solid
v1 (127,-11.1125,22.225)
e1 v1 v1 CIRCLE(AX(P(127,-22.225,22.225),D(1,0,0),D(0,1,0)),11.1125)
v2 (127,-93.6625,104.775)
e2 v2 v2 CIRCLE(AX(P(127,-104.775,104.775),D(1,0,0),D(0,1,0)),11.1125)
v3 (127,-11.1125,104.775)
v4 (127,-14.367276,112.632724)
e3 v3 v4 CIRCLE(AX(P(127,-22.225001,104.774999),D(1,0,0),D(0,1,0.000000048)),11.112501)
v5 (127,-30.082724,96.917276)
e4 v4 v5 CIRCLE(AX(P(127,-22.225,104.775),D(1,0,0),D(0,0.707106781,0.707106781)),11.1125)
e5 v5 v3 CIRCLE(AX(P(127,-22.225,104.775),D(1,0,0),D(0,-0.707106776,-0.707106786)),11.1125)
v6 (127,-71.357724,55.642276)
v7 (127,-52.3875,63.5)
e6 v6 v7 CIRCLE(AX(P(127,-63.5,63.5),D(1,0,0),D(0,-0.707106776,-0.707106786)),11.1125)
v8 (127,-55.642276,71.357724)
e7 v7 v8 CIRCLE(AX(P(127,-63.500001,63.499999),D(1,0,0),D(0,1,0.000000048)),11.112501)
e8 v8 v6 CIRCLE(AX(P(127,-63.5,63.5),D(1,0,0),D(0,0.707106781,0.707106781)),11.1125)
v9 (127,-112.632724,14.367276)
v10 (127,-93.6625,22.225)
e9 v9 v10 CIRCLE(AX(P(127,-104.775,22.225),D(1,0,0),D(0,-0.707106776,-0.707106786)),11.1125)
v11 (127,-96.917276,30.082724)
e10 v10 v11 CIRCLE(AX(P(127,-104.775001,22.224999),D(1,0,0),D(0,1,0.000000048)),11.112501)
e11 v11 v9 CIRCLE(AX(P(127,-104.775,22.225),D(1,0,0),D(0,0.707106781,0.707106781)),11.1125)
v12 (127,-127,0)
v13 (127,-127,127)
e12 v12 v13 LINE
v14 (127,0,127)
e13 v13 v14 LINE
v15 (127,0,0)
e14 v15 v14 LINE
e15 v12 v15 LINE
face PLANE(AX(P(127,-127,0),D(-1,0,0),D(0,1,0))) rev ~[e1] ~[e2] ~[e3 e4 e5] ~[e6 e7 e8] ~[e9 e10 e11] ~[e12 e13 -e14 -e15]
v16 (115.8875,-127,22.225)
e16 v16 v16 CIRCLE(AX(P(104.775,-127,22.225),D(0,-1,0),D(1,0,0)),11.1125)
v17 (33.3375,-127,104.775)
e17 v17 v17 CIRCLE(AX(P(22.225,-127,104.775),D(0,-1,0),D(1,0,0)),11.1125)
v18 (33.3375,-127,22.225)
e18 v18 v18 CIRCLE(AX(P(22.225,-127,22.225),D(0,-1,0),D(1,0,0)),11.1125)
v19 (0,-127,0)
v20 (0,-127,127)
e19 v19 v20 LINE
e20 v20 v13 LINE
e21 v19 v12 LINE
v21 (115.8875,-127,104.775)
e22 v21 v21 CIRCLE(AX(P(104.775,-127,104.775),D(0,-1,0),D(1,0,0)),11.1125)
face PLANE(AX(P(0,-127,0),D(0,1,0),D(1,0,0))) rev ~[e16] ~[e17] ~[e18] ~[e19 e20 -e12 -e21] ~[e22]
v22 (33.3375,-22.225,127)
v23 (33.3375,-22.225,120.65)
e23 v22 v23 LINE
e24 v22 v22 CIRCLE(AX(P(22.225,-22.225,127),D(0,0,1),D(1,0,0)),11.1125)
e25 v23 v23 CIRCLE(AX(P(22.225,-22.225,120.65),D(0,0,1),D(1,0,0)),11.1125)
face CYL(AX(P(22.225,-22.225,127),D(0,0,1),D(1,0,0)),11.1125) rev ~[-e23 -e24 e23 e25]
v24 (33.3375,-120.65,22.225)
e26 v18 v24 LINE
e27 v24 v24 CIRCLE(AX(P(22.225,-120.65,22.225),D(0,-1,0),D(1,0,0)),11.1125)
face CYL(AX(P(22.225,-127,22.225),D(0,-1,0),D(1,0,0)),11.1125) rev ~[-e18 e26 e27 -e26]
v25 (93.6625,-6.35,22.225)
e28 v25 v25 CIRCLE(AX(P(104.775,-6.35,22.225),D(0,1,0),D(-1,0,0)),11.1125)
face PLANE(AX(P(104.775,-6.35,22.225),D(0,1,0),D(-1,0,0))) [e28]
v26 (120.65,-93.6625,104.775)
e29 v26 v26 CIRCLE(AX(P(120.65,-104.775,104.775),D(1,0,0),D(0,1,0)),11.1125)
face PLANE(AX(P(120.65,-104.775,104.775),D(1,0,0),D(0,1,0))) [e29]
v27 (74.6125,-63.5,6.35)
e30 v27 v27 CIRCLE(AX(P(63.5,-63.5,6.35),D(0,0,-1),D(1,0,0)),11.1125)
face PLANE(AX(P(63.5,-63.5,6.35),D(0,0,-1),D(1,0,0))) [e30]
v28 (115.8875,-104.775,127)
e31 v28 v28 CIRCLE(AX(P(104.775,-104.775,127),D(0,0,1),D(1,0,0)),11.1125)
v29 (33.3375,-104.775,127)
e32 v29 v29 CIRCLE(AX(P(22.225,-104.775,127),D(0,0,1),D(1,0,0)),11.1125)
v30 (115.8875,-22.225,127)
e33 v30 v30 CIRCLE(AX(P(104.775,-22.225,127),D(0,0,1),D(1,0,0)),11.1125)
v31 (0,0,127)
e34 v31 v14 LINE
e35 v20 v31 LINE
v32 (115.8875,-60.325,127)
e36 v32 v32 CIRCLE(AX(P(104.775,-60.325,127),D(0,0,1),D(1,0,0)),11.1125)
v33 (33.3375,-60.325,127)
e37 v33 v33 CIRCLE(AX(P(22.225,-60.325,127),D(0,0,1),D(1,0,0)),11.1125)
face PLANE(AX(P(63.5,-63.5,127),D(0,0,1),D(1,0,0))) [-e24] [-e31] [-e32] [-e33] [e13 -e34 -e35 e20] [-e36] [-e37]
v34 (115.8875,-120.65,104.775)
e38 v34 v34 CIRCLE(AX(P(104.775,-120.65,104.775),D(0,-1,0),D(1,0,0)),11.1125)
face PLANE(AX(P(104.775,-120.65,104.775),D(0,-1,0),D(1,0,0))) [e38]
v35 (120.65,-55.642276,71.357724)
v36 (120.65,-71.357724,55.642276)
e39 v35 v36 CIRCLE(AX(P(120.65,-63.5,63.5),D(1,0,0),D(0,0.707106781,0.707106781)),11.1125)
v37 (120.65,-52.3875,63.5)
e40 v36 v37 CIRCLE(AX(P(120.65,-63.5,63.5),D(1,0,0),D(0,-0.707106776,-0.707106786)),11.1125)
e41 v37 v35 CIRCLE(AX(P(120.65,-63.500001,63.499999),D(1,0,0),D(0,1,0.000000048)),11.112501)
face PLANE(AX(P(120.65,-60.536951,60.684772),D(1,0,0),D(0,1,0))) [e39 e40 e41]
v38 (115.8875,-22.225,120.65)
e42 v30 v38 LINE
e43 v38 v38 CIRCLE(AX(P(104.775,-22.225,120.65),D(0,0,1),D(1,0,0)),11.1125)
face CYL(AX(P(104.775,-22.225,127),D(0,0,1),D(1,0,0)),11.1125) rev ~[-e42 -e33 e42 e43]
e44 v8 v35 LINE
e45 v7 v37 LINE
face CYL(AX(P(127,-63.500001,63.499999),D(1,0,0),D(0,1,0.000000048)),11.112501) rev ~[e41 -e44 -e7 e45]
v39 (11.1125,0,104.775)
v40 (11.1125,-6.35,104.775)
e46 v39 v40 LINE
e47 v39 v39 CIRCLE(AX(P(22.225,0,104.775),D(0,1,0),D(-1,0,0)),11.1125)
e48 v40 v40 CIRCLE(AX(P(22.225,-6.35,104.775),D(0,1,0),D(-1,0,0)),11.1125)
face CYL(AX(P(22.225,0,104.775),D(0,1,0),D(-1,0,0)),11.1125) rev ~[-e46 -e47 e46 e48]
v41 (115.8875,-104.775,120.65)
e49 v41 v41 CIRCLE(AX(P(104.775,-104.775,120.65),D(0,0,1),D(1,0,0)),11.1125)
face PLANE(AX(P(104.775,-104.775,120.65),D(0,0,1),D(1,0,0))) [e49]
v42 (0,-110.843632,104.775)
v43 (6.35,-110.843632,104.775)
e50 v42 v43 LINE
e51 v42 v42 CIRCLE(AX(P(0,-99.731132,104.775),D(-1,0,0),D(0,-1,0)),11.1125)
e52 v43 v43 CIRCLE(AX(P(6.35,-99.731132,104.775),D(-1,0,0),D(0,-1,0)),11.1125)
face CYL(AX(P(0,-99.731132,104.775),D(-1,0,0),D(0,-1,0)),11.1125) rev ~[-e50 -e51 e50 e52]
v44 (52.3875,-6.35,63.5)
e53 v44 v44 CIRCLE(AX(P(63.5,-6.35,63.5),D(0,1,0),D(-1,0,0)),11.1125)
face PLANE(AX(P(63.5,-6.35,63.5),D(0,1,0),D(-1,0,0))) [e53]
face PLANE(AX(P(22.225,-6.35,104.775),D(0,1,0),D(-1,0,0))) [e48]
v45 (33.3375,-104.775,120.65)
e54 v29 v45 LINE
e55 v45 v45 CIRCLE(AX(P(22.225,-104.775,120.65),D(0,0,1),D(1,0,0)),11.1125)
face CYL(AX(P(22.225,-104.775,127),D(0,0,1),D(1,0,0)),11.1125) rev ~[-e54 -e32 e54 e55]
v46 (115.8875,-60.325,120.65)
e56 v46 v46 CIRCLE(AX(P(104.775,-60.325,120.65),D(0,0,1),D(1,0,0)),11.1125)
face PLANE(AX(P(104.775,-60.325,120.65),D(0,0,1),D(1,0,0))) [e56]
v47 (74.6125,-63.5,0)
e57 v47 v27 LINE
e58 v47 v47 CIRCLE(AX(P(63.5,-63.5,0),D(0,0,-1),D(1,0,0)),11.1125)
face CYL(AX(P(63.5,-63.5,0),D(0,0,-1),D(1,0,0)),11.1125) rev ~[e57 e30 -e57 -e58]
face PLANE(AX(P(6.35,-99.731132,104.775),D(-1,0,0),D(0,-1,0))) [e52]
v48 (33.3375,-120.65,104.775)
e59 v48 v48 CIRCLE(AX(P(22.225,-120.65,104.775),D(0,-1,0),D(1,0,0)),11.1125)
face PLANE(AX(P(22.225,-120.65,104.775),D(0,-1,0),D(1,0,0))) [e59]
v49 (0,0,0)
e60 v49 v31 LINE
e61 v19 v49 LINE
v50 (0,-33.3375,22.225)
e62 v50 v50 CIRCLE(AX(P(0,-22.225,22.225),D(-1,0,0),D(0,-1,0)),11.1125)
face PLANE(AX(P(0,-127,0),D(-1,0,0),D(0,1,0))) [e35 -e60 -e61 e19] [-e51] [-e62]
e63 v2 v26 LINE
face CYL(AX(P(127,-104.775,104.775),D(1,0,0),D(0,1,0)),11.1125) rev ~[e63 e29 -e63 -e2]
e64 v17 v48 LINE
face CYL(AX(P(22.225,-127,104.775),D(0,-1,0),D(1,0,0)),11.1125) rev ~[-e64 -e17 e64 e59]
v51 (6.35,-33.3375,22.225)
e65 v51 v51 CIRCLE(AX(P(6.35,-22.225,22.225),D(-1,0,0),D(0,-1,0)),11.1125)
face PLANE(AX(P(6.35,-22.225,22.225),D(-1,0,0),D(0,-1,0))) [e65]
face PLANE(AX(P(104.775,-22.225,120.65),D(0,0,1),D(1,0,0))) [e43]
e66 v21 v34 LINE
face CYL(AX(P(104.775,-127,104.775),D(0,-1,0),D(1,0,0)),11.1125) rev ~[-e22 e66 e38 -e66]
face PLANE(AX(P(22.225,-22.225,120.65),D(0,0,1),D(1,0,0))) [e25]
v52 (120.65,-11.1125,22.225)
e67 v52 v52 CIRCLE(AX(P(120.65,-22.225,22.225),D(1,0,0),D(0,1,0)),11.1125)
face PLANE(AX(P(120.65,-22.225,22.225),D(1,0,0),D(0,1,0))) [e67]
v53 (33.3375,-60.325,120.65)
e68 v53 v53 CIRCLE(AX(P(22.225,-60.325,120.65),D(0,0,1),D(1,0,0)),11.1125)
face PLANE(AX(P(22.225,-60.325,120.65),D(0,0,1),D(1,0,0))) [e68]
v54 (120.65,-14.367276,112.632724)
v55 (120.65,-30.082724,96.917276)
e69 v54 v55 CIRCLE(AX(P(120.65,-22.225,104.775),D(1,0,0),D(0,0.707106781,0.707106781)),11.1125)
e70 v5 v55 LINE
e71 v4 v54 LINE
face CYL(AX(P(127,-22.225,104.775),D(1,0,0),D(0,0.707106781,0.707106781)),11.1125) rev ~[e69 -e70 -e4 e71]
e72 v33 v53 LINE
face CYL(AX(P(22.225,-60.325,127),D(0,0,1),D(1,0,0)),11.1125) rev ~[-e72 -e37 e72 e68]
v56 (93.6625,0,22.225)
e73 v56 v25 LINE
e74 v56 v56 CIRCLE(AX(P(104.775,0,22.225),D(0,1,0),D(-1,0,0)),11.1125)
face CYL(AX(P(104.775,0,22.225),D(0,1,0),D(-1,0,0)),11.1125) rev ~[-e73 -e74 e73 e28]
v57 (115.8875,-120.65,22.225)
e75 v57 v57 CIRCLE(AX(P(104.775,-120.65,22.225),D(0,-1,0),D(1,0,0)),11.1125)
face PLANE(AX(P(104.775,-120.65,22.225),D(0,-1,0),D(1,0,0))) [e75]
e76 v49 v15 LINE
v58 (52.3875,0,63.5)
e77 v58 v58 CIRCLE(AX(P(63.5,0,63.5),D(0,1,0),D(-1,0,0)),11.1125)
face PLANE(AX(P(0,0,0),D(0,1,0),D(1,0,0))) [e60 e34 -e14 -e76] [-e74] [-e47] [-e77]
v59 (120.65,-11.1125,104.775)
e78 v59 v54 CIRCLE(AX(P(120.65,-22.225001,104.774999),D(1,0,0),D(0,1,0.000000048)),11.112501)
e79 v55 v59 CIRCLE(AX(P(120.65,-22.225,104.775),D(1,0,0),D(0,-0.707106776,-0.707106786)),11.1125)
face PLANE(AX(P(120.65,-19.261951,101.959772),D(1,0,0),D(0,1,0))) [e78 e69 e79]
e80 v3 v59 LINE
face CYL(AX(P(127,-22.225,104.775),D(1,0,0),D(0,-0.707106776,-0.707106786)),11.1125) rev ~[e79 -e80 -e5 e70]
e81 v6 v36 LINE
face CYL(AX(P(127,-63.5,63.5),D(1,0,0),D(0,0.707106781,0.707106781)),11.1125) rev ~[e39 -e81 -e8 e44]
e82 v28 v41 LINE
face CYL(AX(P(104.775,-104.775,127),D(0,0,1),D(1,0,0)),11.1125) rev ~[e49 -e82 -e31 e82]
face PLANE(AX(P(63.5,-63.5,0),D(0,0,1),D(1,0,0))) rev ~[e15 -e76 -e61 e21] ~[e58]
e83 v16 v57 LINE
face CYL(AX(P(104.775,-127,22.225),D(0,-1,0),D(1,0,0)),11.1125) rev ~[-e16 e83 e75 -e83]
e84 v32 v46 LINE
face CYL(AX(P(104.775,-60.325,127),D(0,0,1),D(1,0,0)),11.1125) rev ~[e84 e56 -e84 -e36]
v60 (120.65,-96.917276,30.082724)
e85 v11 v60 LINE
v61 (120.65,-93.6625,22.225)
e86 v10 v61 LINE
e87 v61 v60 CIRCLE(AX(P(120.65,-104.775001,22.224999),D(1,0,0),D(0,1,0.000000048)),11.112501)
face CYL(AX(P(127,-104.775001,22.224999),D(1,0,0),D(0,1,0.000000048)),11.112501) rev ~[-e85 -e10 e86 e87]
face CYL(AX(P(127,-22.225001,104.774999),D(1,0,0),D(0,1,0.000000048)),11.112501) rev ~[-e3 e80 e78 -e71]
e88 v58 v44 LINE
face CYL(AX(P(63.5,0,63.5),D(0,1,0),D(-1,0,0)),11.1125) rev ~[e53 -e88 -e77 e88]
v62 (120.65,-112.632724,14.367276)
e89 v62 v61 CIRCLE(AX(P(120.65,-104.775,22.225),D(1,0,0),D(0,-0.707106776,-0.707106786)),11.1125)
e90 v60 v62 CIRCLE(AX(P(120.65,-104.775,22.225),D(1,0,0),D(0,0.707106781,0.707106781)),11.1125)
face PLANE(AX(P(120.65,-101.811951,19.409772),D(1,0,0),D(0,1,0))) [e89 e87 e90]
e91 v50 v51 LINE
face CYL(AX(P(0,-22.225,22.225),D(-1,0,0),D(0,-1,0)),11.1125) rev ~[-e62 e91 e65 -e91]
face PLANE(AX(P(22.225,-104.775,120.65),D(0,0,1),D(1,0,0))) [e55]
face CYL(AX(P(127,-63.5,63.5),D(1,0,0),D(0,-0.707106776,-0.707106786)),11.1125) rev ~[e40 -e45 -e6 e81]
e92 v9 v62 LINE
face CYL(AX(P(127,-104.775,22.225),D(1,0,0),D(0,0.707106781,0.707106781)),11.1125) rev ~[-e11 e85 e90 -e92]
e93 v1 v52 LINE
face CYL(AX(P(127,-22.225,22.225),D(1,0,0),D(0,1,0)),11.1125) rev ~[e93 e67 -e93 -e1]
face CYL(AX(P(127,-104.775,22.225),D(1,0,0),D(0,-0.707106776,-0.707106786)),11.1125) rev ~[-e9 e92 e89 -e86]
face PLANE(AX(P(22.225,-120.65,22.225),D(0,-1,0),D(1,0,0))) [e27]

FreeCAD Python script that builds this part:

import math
import FreeCAD as App
import Part
import Sketcher
Q = App.Units.Quantity

doc = App.newDocument("Part")
body = doc.addObject("PartDesign::Body", "Body")

# Sketch on XY plane
sketch1 = body.newObject("Sketcher::SketchObject", "Sketch")
sketch1.AttachmentSupport = (doc.getObject("XY_Plane"), [""])
sketch1.MapMode = "FlatFace"
sketch1.addGeometry([
    Part.LineSegment(App.Vector(0, 0, 0), App.Vector(0, -127, 0)),
    Part.LineSegment(App.Vector(0, -127, 0), App.Vector(127, -127, 0)),
    Part.LineSegment(App.Vector(127, -127, 0), App.Vector(127, 0, 0)),
    Part.LineSegment(App.Vector(127, 0, 0), App.Vector(0, 0, 0)),
], False)
sketch1.addConstraint([
    Sketcher.Constraint("Coincident", 0, 2, 1, 1),
    Sketcher.Constraint("Coincident", 1, 2, 2, 1),
    Sketcher.Constraint("Coincident", 2, 2, 3, 1),
    Sketcher.Constraint("Coincident", 3, 2, 0, 1),
    Sketcher.Constraint("Vertical", 0),
    Sketcher.Constraint("Horizontal", 1),
    Sketcher.Constraint("Vertical", 2),
    Sketcher.Constraint("Horizontal", 3),
    Sketcher.Constraint("Coincident", 3, 2, -1, 1),
    Sketcher.Constraint("Equal", 3, 0),
    Sketcher.Constraint("DistanceX", 1, 1, 1, 2, Q("5 in")),
])
pad1 = body.newObject("PartDesign::Pad", "Pad")
pad1.Profile = sketch1
pad1.Length = Q("5 in")

# Sketch on XY plane
sketch2 = body.newObject("Sketcher::SketchObject", "Sketch001")
sketch2.AttachmentSupport = (doc.getObject("XY_Plane"), [""])
sketch2.MapMode = "FlatFace"
sketch2.addGeometry(Part.Circle(App.Vector(64, -64, 0), App.Vector(0, 0, 1), 11), False)
sketch2.addConstraint([
    Sketcher.Constraint("Diameter", 0, Q("0.875 in")),
    Sketcher.Constraint("DistanceX", -1, 1, 0, 3, Q("2.5 in")),
    Sketcher.Constraint("DistanceY", 0, 3, -1, 1, Q("2.5 in")),
])
pocket1 = body.newObject("PartDesign::Pocket", "Pocket")
pocket1.Profile = sketch2
pocket1.Length = Q("0.25 in")
pocket1.Reversed = True

# Sketch on YZ plane
sketch3 = body.newObject("Sketcher::SketchObject", "Sketch002")
sketch3.AttachmentSupport = (doc.getObject("YZ_Plane"), [""])
sketch3.MapMode = "FlatFace"
sketch3.addGeometry([
    Part.Circle(App.Vector(-100, 105, 0), App.Vector(0, 0, 1), 11),
    Part.Circle(App.Vector(-22, 22, 0), App.Vector(0, 0, 1), 11),
], False)
sketch3.addConstraint([
    Sketcher.Constraint("Equal", 0, 1),
    Sketcher.Constraint("Diameter", 0, Q("0.875 in")),
    Sketcher.Constraint("DistanceY", 1, 3, 0, 3, Q("3.25 in")),
    Sketcher.Constraint("DistanceY", -1, 1, 0, 3, Q("4.125 in")),
    Sketcher.Constraint("DistanceX", 1, 3, -1, 1, Q("0.875 in")),
    Sketcher.Constraint("DistanceX", 0, 3, -1, 1, 99.731132),
])
pocket2 = body.newObject("PartDesign::Pocket", "Pocket001")
pocket2.Profile = sketch3
pocket2.Length = Q("0.25 in")
pocket2.Reversed = True

# Sketch on XZ plane
sketch4 = body.newObject("Sketcher::SketchObject", "Sketch003")
sketch4.AttachmentSupport = (doc.getObject("XZ_Plane"), [""])
sketch4.MapMode = "FlatFace"
sketch4.addGeometry([
    Part.Circle(App.Vector(22, 105, 0), App.Vector(0, 0, 1), 11),
    Part.Circle(App.Vector(64, 64, 0), App.Vector(0, 0, 1), 11),
    Part.Circle(App.Vector(105, 22, 0), App.Vector(0, 0, 1), 11),
], False)
sketch4.addConstraint([
    Sketcher.Constraint("Equal", 0, 1),
    Sketcher.Constraint("Equal", 1, 2),
    Sketcher.Constraint("Diameter", 0, Q("0.875 in")),
    Sketcher.Constraint("DistanceX", -1, 1, 1, 3, Q("2.5 in")),
    Sketcher.Constraint("DistanceY", -1, 1, 1, 3, Q("2.5 in")),
    Sketcher.Constraint("DistanceX", 0, 3, 2, 3, Q("3.25 in")),
    Sketcher.Constraint("DistanceY", 2, 3, 0, 3, Q("3.25 in")),
    Sketcher.Constraint("DistanceX", -1, 1, 0, 3, Q("0.875 in")),
    Sketcher.Constraint("DistanceY", -1, 1, 0, 3, Q("4.125 in")),
])
pocket3 = body.newObject("PartDesign::Pocket", "Pocket002")
pocket3.Profile = sketch4
pocket3.Length = Q("0.25 in")
pocket3.Reversed = True

# Sketch on XY plane
sketch5 = body.newObject("Sketcher::SketchObject", "Sketch004")
sketch5.AttachmentSupport = (doc.getObject("XY_Plane"), [""])
sketch5.MapMode = "FlatFace"
sketch5.AttachmentOffset = App.Placement(App.Vector(0, 0, 5 * 25.4), App.Rotation())
sketch5.addGeometry([
    Part.Circle(App.Vector(22, -22, 0), App.Vector(0, 0, 1), 11),  # 0
    Part.Circle(App.Vector(22, -60, 0), App.Vector(0, 0, 1), 11),  # 1
    Part.Circle(App.Vector(22, -105, 0), App.Vector(0, 0, 1), 11),  # 2
    Part.Circle(App.Vector(105, -60, 0), App.Vector(0, 0, 1), 11),  # 3
    Part.Circle(App.Vector(105, -105, 0), App.Vector(0, 0, 1), 11),  # 4
    Part.Circle(App.Vector(105, -22, 0), App.Vector(0, 0, 1), 11),  # 5
], False)
sketch5.addConstraint([
    Sketcher.Constraint("Equal", 0, 1),
    Sketcher.Constraint("Equal", 1, 2),
    Sketcher.Constraint("Equal", 2, 3),
    Sketcher.Constraint("Equal", 3, 4),
    Sketcher.Constraint("Equal", 4, 5),
    Sketcher.Constraint("Horizontal", 1, 3, 3, 3),
    Sketcher.Constraint("Horizontal", 2, 3, 4, 3),
    Sketcher.Constraint("Horizontal", 0, 3, 5, 3),
    Sketcher.Constraint("Vertical", 0, 3, 1, 3),
    Sketcher.Constraint("Vertical", 1, 3, 2, 3),
    Sketcher.Constraint("Vertical", 3, 3, 4, 3),
    Sketcher.Constraint("Vertical", 4, 3, 5, 3),
    Sketcher.Constraint("Diameter", 0, Q("0.875 in")),
    Sketcher.Constraint("DistanceY", 1, 3, 0, 3, Q("1.5 in")),
    Sketcher.Constraint("DistanceY", 2, 3, 1, 3, Q("1.75 in")),
    Sketcher.Constraint("DistanceX", 1, 3, 3, 3, Q("3.25 in")),
    Sketcher.Constraint("DistanceX", -1, 1, 0, 3, Q("0.875 in")),
    Sketcher.Constraint("DistanceY", 0, 3, -1, 1, Q("0.875 in")),
])
pocket4 = body.newObject("PartDesign::Pocket", "Pocket003")
pocket4.Profile = sketch5
pocket4.Length = Q("0.25 in")

# Sketch on XZ plane
sketch6 = body.newObject("Sketcher::SketchObject", "Sketch005")
sketch6.AttachmentSupport = (doc.getObject("XZ_Plane"), [""])
sketch6.MapMode = "FlatFace"
sketch6.AttachmentOffset = App.Placement(App.Vector(0, 0, 5 * 25.4), App.Rotation())
sketch6.addGeometry([
    Part.Circle(App.Vector(105, 22, 0), App.Vector(0, 0, 1), 11),
    Part.Circle(App.Vector(105, 105, 0), App.Vector(0, 0, 1), 11),
    Part.Circle(App.Vector(22, 105, 0), App.Vector(0, 0, 1), 11),
    Part.Circle(App.Vector(22, 22, 0), App.Vector(0, 0, 1), 11),
], False)
sketch6.addConstraint([
    Sketcher.Constraint("Equal", 0, 1),
    Sketcher.Constraint("Equal", 1, 2),
    Sketcher.Constraint("Equal", 2, 3),
    Sketcher.Constraint("Horizontal", 1, 3, 2, 3),
    Sketcher.Constraint("Horizontal", 0, 3, 3, 3),
    Sketcher.Constraint("Vertical", 0, 3, 1, 3),
    Sketcher.Constraint("Vertical", 2, 3, 3, 3),
    Sketcher.Constraint("Diameter", 0, Q("0.875 in")),
    Sketcher.Constraint("DistanceY", 0, 3, 1, 3, Q("3.25 in")),
    Sketcher.Constraint("DistanceX", 2, 3, 1, 3, Q("3.25 in")),
    Sketcher.Constraint("DistanceX", -1, 1, 0, 3, Q("4.125 in")),
    Sketcher.Constraint("DistanceY", -1, 1, 0, 3, Q("0.875 in")),
])
pocket5 = body.newObject("PartDesign::Pocket", "Pocket004")
pocket5.Profile = sketch6
pocket5.Length = Q("0.25 in")

# Sketch on YZ plane
sketch7 = body.newObject("Sketcher::SketchObject", "Sketch006")
sketch7.AttachmentSupport = (doc.getObject("YZ_Plane"), [""])
sketch7.MapMode = "FlatFace"
sketch7.AttachmentOffset = App.Placement(App.Vector(0, 0, 5 * 25.4), App.Rotation())
sketch7.addGeometry([
    Part.ArcOfCircle(Part.Circle(App.Vector(-22, 105, 0), App.Vector(0, 0, 1), 11), math.radians(0), math.radians(45)),  # 0
    Part.ArcOfCircle(Part.Circle(App.Vector(-22, 105, 0), App.Vector(0, 0, 1), 11), math.radians(45), math.radians(225)),  # 1
    Part.ArcOfCircle(Part.Circle(App.Vector(-22, 105, 0), App.Vector(0, 0, 1), 11), math.radians(-135), math.radians(0)),  # 2
    Part.ArcOfCircle(Part.Circle(App.Vector(-105, 22, 0), App.Vector(0, 0, 1), 11), math.radians(0), math.radians(45)),  # 3
    Part.ArcOfCircle(Part.Circle(App.Vector(-105, 22, 0), App.Vector(0, 0, 1), 11), math.radians(45), math.radians(225)),  # 4
    Part.ArcOfCircle(Part.Circle(App.Vector(-105, 22, 0), App.Vector(0, 0, 1), 11), math.radians(-135), math.radians(0)),  # 5
    Part.ArcOfCircle(Part.Circle(App.Vector(-64, 63, 0), App.Vector(0, 0, 1), 11), math.radians(0), math.radians(45)),  # 6
    Part.ArcOfCircle(Part.Circle(App.Vector(-64, 64, 0), App.Vector(0, 0, 1), 11), math.radians(45), math.radians(225)),  # 7
    Part.ArcOfCircle(Part.Circle(App.Vector(-63, 64, 0), App.Vector(0, 0, 1), 11), math.radians(-135), math.radians(0)),  # 8
    Part.Circle(App.Vector(-22, 22, 0), App.Vector(0, 0, 1), 11),  # 9
    Part.Circle(App.Vector(-105, 105, 0), App.Vector(0, 0, 1), 11),  # 10
], False)
sketch7.addConstraint([
    Sketcher.Constraint("Tangent", 0, 2, 1, 1),
    Sketcher.Constraint("Tangent", 1, 2, 2, 1),
    Sketcher.Constraint("Tangent", 2, 2, 0, 1),
    Sketcher.Constraint("Tangent", 3, 2, 4, 1),
    Sketcher.Constraint("Tangent", 4, 2, 5, 1),
    Sketcher.Constraint("Tangent", 5, 2, 3, 1),
    Sketcher.Constraint("Tangent", 6, 2, 7, 1),
    Sketcher.Constraint("Tangent", 7, 2, 8, 1),
    Sketcher.Constraint("Tangent", 8, 2, 6, 1),
    Sketcher.Constraint("Equal", 2, 3),
    Sketcher.Constraint("Equal", 5, 6),
    Sketcher.Constraint("Equal", 8, 9),
    Sketcher.Constraint("Equal", 9, 10),
    Sketcher.Constraint("Horizontal", 5, 3, 9, 3),
    Sketcher.Constraint("Horizontal", 2, 3, 10, 3),
    Sketcher.Constraint("Horizontal", 10, 3, 2, 2),
    Sketcher.Constraint("Horizontal", 9, 3, 5, 2),
    Sketcher.Constraint("Horizontal", 7, 3, 8, 2),
    Sketcher.Constraint("Vertical", 2, 3, 9, 3),
    Sketcher.Constraint("Vertical", 5, 3, 10, 3),
    Sketcher.Constraint("Diameter", 9, Q("0.875 in")),
    Sketcher.Constraint("DistanceX", 6, 3, -1, 1, Q("2.5 in")),
    Sketcher.Constraint("DistanceY", -1, 1, 6, 3, Q("2.5 in")),
    Sketcher.Constraint("DistanceX", 3, 3, 0, 3, Q("3.25 in")),
    Sketcher.Constraint("DistanceY", 3, 3, 0, 3, Q("3.25 in")),
    Sketcher.Constraint("DistanceX", 0, 3, -1, 1, Q("0.875 in")),
    Sketcher.Constraint("DistanceY", -1, 1, 0, 3, Q("4.125 in")),
    Sketcher.Constraint("DistanceX", 0, 2, -1, 1, 14.367276),
    Sketcher.Constraint("DistanceX", 1, 2, -1, 1, 30.082724),
    Sketcher.Constraint("DistanceX", 3, 2, -1, 1, 96.917276),
    Sketcher.Constraint("DistanceX", 4, 2, -1, 1, 112.632724),
    Sketcher.Constraint("DistanceX", 6, 2, -1, 1, 55.642276),
    Sketcher.Constraint("DistanceX", 7, 2, -1, 1, 71.357724),
])
pocket6 = body.newObject("PartDesign::Pocket", "Pocket005")
pocket6.Profile = sketch7
pocket6.Length = Q("0.25 in")

doc.recompute()
